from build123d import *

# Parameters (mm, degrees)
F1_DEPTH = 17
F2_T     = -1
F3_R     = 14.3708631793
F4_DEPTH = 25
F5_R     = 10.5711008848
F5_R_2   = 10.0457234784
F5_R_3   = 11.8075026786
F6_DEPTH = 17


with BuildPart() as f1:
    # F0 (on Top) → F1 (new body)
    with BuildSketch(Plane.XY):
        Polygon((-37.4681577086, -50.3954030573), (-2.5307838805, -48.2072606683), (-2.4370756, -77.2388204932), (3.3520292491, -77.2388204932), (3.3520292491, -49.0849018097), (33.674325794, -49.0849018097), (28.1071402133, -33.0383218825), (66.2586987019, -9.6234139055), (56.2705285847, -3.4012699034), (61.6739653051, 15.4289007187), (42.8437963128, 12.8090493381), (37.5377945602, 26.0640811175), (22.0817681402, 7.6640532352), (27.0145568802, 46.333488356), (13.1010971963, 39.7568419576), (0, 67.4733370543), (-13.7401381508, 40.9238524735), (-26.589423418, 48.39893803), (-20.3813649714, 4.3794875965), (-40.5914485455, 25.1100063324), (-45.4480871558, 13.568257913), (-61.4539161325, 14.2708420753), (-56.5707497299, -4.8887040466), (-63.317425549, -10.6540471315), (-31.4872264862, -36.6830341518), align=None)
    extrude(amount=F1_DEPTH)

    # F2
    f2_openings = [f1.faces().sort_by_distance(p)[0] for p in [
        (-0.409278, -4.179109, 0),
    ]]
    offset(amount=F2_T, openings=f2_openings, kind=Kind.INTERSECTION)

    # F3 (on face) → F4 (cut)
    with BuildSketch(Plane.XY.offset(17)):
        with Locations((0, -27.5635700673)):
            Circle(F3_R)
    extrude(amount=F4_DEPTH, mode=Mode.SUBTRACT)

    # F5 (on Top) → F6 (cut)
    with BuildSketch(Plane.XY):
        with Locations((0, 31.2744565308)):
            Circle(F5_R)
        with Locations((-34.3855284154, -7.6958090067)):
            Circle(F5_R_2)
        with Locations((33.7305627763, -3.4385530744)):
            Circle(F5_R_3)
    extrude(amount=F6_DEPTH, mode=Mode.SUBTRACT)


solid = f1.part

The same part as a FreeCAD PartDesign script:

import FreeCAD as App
import Part
import Sketcher
from FreeCAD import Vector
Q = App.Units.Quantity


def faces_at(feature, points):
    """Names of the faces that lie closest to the given points."""
    faces = feature.Shape.Faces
    near = lambda p: min(range(len(faces)), key=lambda i: faces[i].distToShape(Part.Vertex(*p))[0])
    return sorted({f"Face{near(p) + 1}" for p in points})

doc = App.newDocument("Part")
body = doc.addObject("PartDesign::Body", "Body")

sketch1 = body.newObject("Sketcher::SketchObject", "Sketch")
sketch1.AttachmentSupport = (doc.getObject("XY_Plane"), [""])
sketch1.MapMode = "FlatFace"
sketch1.addGeometry([
    Part.LineSegment(Vector(-37.468158, -50.395403, 0), Vector(-2.530784, -48.207261, 0)),
    Part.LineSegment(Vector(-2.530784, -48.207261, 0), Vector(-2.437076, -77.23882, 0)),
    Part.LineSegment(Vector(-2.437076, -77.23882, 0), Vector(3.352029, -77.23882, 0)),
    Part.LineSegment(Vector(3.352029, -77.23882, 0), Vector(3.352029, -49.084902, 0)),
    Part.LineSegment(Vector(3.352029, -49.084902, 0), Vector(33.674326, -49.084902, 0)),
    Part.LineSegment(Vector(33.674326, -49.084902, 0), Vector(28.10714, -33.038322, 0)),
    Part.LineSegment(Vector(28.10714, -33.038322, 0), Vector(66.258699, -9.623414, 0)),
    Part.LineSegment(Vector(66.258699, -9.623414, 0), Vector(56.270529, -3.40127, 0)),
    Part.LineSegment(Vector(56.270529, -3.40127, 0), Vector(61.673965, 15.428901, 0)),
    Part.LineSegment(Vector(61.673965, 15.428901, 0), Vector(42.843796, 12.809049, 0)),
    Part.LineSegment(Vector(42.843796, 12.809049, 0), Vector(37.537795, 26.064081, 0)),
    Part.LineSegment(Vector(37.537795, 26.064081, 0), Vector(22.081768, 7.664053, 0)),
    Part.LineSegment(Vector(22.081768, 7.664053, 0), Vector(27.014557, 46.333488, 0)),
    Part.LineSegment(Vector(27.014557, 46.333488, 0), Vector(13.101097, 39.756842, 0)),
    Part.LineSegment(Vector(13.101097, 39.756842, 0), Vector(0, 67.473337, 0)),
    Part.LineSegment(Vector(0, 67.473337, 0), Vector(-13.740138, 40.923852, 0)),
    Part.LineSegment(Vector(-13.740138, 40.923852, 0), Vector(-26.589423, 48.398938, 0)),
    Part.LineSegment(Vector(-26.589423, 48.398938, 0), Vector(-20.381365, 4.379488, 0)),
    Part.LineSegment(Vector(-20.381365, 4.379488, 0), Vector(-40.591449, 25.110006, 0)),
    Part.LineSegment(Vector(-40.591449, 25.110006, 0), Vector(-45.448087, 13.568258, 0)),
    Part.LineSegment(Vector(-45.448087, 13.568258, 0), Vector(-61.453916, 14.270842, 0)),
    Part.LineSegment(Vector(-61.453916, 14.270842, 0), Vector(-56.57075, -4.888704, 0)),
    Part.LineSegment(Vector(-56.57075, -4.888704, 0), Vector(-63.317426, -10.654047, 0)),
    Part.LineSegment(Vector(-63.317426, -10.654047, 0), Vector(-31.487226, -36.683034, 0)),
    Part.LineSegment(Vector(-31.487226, -36.683034, 0), Vector(-37.468158, -50.395403, 0)),
], False)
sketch1.addConstraint([
    Sketcher.Constraint("Coincident", 0, 2, 1, 1),
    Sketcher.Constraint("Coincident", 1, 2, 2, 1),
    Sketcher.Constraint("Coincident", 2, 2, 3, 1),
    Sketcher.Constraint("Coincident", 3, 2, 4, 1),
    Sketcher.Constraint("Coincident", 4, 2, 5, 1),
    Sketcher.Constraint("Coincident", 5, 2, 6, 1),
    Sketcher.Constraint("Coincident", 6, 2, 7, 1),
    Sketcher.Constraint("Coincident", 7, 2, 8, 1),
    Sketcher.Constraint("Coincident", 8, 2, 9, 1),
    Sketcher.Constraint("Coincident", 9, 2, 10, 1),
    Sketcher.Constraint("Coincident", 10, 2, 11, 1),
    Sketcher.Constraint("Coincident", 11, 2, 12, 1),
    Sketcher.Constraint("Coincident", 12, 2, 13, 1),
    Sketcher.Constraint("Coincident", 13, 2, 14, 1),
    Sketcher.Constraint("Coincident", 14, 2, 15, 1),
    Sketcher.Constraint("Coincident", 15, 2, 16, 1),
    Sketcher.Constraint("Coincident", 16, 2, 17, 1),
    Sketcher.Constraint("Coincident", 17, 2, 18, 1),
    Sketcher.Constraint("Coincident", 18, 2, 19, 1),
    Sketcher.Constraint("Coincident", 19, 2, 20, 1),
    Sketcher.Constraint("Coincident", 20, 2, 21, 1),
    Sketcher.Constraint("Coincident", 21, 2, 22, 1),
    Sketcher.Constraint("Coincident", 22, 2, 23, 1),
    Sketcher.Constraint("Coincident", 23, 2, 24, 1),
    Sketcher.Constraint("Coincident", 24, 2, 0, 1),
    Sketcher.Constraint("Horizontal", 2),
    Sketcher.Constraint("Vertical", 3),
    Sketcher.Constraint("Horizontal", 4),
    Sketcher.Constraint("PointOnObject", 14, 2, -2),
    Sketcher.Constraint("Perpendicular", 13, 14),
    Sketcher.Constraint("DistanceX", 10, 2, 9, 2, Q("5.306002 mm")),
    Sketcher.Constraint("DistanceY", 3, 1, 3, 2, Q("28.153919 mm")),
    Sketcher.Constraint("DistanceY", 3, 2, -1, 1, Q("49.084902 mm")),
    Sketcher.Constraint("DistanceX", -1, 1, 6, 2, Q("66.258699 mm")),
    Sketcher.Constraint("DistanceY", -1, 1, 8, 2, Q("15.428901 mm")),
    Sketcher.Constraint("DistanceX", 1, 2, 4, 2, Q("36.111401 mm")),
    Sketcher.Constraint("DistanceY", 2, 2, 5, 2, Q("44.200499 mm")),
    Sketcher.Constraint("DistanceX", 3, 2, 7, 2, Q("52.918499 mm")),
    Sketcher.Constraint("DistanceX", 13, 2, 9, 2, Q("29.742699 mm")),
    Sketcher.Constraint("DistanceY", 11, 2, 15, 2, Q("33.259799 mm")),
    Sketcher.Constraint("DistanceY", 16, 2, 14, 2, Q("19.074399 mm")),
    Sketcher.Constraint("DistanceX", 21, 2, 18, 2, Q("15.979301 mm")),
    Sketcher.Constraint("DistanceX", 22, 2, 23, 2, Q("31.830199 mm")),
    Sketcher.Constraint("DistanceY", 24, 2, 3, 2, Q("1.310501 mm")),
    Sketcher.Constraint("Distance", 0, Q("35.005829 mm")),
    Sketcher.Constraint("Distance", 1, Q("29.031711 mm")),
    Sketcher.Constraint("Distance", 8, Q("19.590111 mm")),
    Sketcher.Constraint("Distance", 10, Q("14.277588 mm")),
    Sketcher.Constraint("Distance", 16, Q("14.865431 mm")),
    Sketcher.Constraint("Distance", 20, Q("16.021242 mm")),
    Sketcher.Constraint("Distance", 21, Q("19.772039 mm")),
    Sketcher.Constraint("DistanceX", 2, 1, 2, 2, Q("5.789105 mm")),
    Sketcher.Constraint("DistanceX", -1, 1, 2, 2, Q("3.352029 mm")),
    Sketcher.Constraint("DistanceX", -1, 1, 5, 2, Q("28.10714 mm")),
    Sketcher.Constraint("DistanceY", 7, 2, -1, 1, Q("3.40127 mm")),
    Sketcher.Constraint("DistanceY", -1, 1, 9, 2, Q("12.809049 mm")),
    Sketcher.Constraint("DistanceX", -1, 1, 11, 2, Q("22.081768 mm")),
    Sketcher.Constraint("DistanceY", -1, 1, 12, 2, Q("46.333488 mm")),
    Sketcher.Constraint("DistanceY", -1, 1, 13, 2, Q("39.756842 mm")),
    Sketcher.Constraint("DistanceX", 15, 2, -1, 1, Q("13.740138 mm")),
    Sketcher.Constraint("DistanceY", -1, 1, 16, 2, Q("48.398938 mm")),
    Sketcher.Constraint("DistanceX", 18, 2, -1, 1, Q("40.591449 mm")),
    Sketcher.Constraint("DistanceX", 0, 2, 1, 2, Q("0.093708 mm")),
    Sketcher.Constraint("DistanceX", 9, 2, 8, 2, Q("18.830169 mm")),
    Sketcher.Constraint("DistanceY", 11, 2, 13, 2, Q("32.092789 mm")),
    Sketcher.Constraint("DistanceX", 16, 2, 17, 2, Q("6.208058 mm")),
    Sketcher.Constraint("DistanceY", 17, 2, 16, 2, Q("44.01945 mm")),
    Sketcher.Constraint("DistanceY", 18, 2, 16, 2, Q("23.288932 mm")),
    Sketcher.Constraint("DistanceX", 19, 2, 18, 2, Q("4.856639 mm")),
    Sketcher.Constraint("DistanceY", 19, 2, 18, 2, Q("11.541748 mm")),
    Sketcher.Constraint("DistanceX", 20, 2, 19, 2, Q("16.005829 mm")),
    Sketcher.Constraint("DistanceX", 22, 2, 20, 2, Q("1.863509 mm")),
    Sketcher.Constraint("DistanceY", 22, 2, 20, 2, Q("24.924889 mm")),
    Sketcher.Constraint("DistanceY", 23, 2, 21, 2, Q("31.79433 mm")),
    Sketcher.Constraint("Distance", 6, Q("44.763817 mm")),
])
pad1 = body.newObject("PartDesign::Pad", "Pad")
pad1.Profile = sketch1
pad1.Length = 17
doc.recompute()

thickness = body.newObject("PartDesign::Thickness", "Thickness")
thickness.Base = (pad1, faces_at(pad1, [(1.471, -4.883, 0)]))
thickness.Value = 1
thickness.Reversed = True
thickness.Join = "Intersection"

sketch2 = body.newObject("Sketcher::SketchObject", "Sketch001")
sketch2.AttachmentSupport = (doc.getObject("XY_Plane"), [""])
sketch2.MapMode = "FlatFace"
sketch2.AttachmentOffset = App.Placement(Vector(0, 0, 17), App.Rotation())
sketch2.addGeometry(Part.Circle(Vector(0, -27.56357, 0), Vector(0, 0, 1), 14.370863), False)
sketch2.addConstraint([
    Sketcher.Constraint("PointOnObject", 0, 3, -2),
    Sketcher.Constraint("Diameter", 0, Q("28.741726 mm")),
    Sketcher.Constraint("DistanceY", 0, 3, -1, 1, Q("27.56357 mm")),
])
pocket1 = body.newObject("PartDesign::Pocket", "Pocket")
pocket1.Profile = sketch2
pocket1.Length = 25
pocket1.Reversed = True

sketch3 = body.newObject("Sketcher::SketchObject", "Sketch002")
sketch3.AttachmentSupport = (doc.getObject("XY_Plane"), [""])
sketch3.MapMode = "FlatFace"
sketch3.addGeometry([
    Part.Circle(Vector(0, 31.274457, 0), Vector(0, 0, 1), 10.571101),
    Part.Circle(Vector(-34.385528, -7.695809, 0), Vector(0, 0, 1), 10.045723),
    Part.Circle(Vector(33.730563, -3.438553, 0), Vector(0, 0, 1), 11.807503),
], False)
sketch3.addConstraint([
    Sketcher.Constraint("PointOnObject", 0, 3, -2),
    Sketcher.Constraint("Diameter", 0, Q("21.142202 mm")),
    Sketcher.Constraint("Diameter", 1, Q("20.091447 mm")),
    Sketcher.Constraint("Diameter", 2, Q("23.615005 mm")),
    Sketcher.Constraint("DistanceX", 1, 3, -1, 1, Q("34.385528 mm")),
    Sketcher.Constraint("DistanceY", 1, 3, -1, 1, Q("7.695809 mm")),
    Sketcher.Constraint("DistanceY", 2, 3, 0, 3, Q("34.71301 mm")),
    Sketcher.Constraint("DistanceX", 1, 3, 2, 3, Q("68.116091 mm")),
    Sketcher.Constraint("DistanceY", -1, 1, 0, 3, Q("31.274457 mm")),
])
pocket2 = body.newObject("PartDesign::Pocket", "Pocket001")
pocket2.Profile = sketch3
pocket2.Length = 17
pocket2.Reversed = True

doc.recompute()
